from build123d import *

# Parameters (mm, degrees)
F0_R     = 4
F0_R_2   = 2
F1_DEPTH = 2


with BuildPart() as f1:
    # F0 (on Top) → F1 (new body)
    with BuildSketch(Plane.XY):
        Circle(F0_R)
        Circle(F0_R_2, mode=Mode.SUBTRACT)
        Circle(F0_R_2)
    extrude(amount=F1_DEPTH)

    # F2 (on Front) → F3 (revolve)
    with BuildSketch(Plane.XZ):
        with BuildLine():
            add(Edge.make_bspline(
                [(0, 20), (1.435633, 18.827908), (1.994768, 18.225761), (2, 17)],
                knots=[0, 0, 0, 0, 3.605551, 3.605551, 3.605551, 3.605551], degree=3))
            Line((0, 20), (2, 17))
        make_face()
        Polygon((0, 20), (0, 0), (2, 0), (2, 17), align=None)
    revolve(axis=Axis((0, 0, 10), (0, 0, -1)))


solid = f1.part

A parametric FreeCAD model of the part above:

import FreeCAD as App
import Part
import Sketcher

V = App.Vector
Q = App.Units.Quantity

doc = App.newDocument("Part")
params = doc.addObject("Spreadsheet::Sheet", "Params")
for row, (alias, value) in enumerate([
    ("sketch1_diameter", "8 mm"),
    ("pad1_length", "2 mm"),
    ("revolution_angle", "360 deg"),
], start=1):
    params.set(f"A{row}", alias)
    params.set(f"B{row}", "=" + value)
    params.setAlias(f"B{row}", alias)

body = doc.addObject("PartDesign::Body", "Body")

# Sketch on XY plane
sketch1 = body.newObject("Sketcher::SketchObject", "Sketch")
sketch1.AttachmentSupport = (doc.getObject("XY_Plane"), [""])
sketch1.MapMode = "FlatFace"
sketch1.addGeometry(Part.Circle(V(0, 0, 0), V(0, 0, 1), 4), False)
sketch1.addConstraint([
    Sketcher.Constraint("Coincident", 0, 3, -1, 1),
    Sketcher.Constraint("Diameter", 0, Q("8 mm")),
])
sketch1.setExpression("Constraints[1]", "Params.sketch1_diameter")
pad1 = body.newObject("PartDesign::Pad", "Pad")
pad1.Profile = sketch1
pad1.setExpression("Length", "Params.pad1_length")

# Sketch on XZ plane
sketch2 = body.newObject("Sketcher::SketchObject", "Sketch001")
sketch2.AttachmentSupport = (doc.getObject("XZ_Plane"), [""])
sketch2.MapMode = "FlatFace"
sketch2.addGeometry([
    Part.BSplineCurve([V(0, 20, 0), V(1.435633, 18.827908, 0), V(1.994768, 18.225761, 0), V(2, 17, 0)], [4, 4], [0, 3.605551], False, 3, [1, 1, 1, 1], False),
    Part.LineSegment(V(0, 20, 0), V(0, 0, 0)),
    Part.LineSegment(V(0, 0, 0), V(2, 0, 0)),
    Part.LineSegment(V(2, 0, 0), V(2, 17, 0)),
], False)
sketch2.addConstraint([
    Sketcher.Constraint("Block", 0),
    Sketcher.Constraint("Coincident", 0, 1, 1, 1),
    Sketcher.Constraint("Coincident", 1, 2, 2, 1),
    Sketcher.Constraint("Coincident", 2, 2, 3, 1),
    Sketcher.Constraint("Coincident", 3, 2, 0, 2),
    Sketcher.Constraint("Vertical", 1),
    Sketcher.Constraint("Horizontal", 2),
    Sketcher.Constraint("Vertical", 3),
    Sketcher.Constraint("PointOnObject", 2, 2, -1),
])
revolution = body.newObject("PartDesign::Revolution", "Revolution")
revolution.Profile = sketch2
revolution.ReferenceAxis = (sketch2, ["V_Axis"])
revolution.setExpression("Angle", "Params.revolution_angle")

doc.recompute()
